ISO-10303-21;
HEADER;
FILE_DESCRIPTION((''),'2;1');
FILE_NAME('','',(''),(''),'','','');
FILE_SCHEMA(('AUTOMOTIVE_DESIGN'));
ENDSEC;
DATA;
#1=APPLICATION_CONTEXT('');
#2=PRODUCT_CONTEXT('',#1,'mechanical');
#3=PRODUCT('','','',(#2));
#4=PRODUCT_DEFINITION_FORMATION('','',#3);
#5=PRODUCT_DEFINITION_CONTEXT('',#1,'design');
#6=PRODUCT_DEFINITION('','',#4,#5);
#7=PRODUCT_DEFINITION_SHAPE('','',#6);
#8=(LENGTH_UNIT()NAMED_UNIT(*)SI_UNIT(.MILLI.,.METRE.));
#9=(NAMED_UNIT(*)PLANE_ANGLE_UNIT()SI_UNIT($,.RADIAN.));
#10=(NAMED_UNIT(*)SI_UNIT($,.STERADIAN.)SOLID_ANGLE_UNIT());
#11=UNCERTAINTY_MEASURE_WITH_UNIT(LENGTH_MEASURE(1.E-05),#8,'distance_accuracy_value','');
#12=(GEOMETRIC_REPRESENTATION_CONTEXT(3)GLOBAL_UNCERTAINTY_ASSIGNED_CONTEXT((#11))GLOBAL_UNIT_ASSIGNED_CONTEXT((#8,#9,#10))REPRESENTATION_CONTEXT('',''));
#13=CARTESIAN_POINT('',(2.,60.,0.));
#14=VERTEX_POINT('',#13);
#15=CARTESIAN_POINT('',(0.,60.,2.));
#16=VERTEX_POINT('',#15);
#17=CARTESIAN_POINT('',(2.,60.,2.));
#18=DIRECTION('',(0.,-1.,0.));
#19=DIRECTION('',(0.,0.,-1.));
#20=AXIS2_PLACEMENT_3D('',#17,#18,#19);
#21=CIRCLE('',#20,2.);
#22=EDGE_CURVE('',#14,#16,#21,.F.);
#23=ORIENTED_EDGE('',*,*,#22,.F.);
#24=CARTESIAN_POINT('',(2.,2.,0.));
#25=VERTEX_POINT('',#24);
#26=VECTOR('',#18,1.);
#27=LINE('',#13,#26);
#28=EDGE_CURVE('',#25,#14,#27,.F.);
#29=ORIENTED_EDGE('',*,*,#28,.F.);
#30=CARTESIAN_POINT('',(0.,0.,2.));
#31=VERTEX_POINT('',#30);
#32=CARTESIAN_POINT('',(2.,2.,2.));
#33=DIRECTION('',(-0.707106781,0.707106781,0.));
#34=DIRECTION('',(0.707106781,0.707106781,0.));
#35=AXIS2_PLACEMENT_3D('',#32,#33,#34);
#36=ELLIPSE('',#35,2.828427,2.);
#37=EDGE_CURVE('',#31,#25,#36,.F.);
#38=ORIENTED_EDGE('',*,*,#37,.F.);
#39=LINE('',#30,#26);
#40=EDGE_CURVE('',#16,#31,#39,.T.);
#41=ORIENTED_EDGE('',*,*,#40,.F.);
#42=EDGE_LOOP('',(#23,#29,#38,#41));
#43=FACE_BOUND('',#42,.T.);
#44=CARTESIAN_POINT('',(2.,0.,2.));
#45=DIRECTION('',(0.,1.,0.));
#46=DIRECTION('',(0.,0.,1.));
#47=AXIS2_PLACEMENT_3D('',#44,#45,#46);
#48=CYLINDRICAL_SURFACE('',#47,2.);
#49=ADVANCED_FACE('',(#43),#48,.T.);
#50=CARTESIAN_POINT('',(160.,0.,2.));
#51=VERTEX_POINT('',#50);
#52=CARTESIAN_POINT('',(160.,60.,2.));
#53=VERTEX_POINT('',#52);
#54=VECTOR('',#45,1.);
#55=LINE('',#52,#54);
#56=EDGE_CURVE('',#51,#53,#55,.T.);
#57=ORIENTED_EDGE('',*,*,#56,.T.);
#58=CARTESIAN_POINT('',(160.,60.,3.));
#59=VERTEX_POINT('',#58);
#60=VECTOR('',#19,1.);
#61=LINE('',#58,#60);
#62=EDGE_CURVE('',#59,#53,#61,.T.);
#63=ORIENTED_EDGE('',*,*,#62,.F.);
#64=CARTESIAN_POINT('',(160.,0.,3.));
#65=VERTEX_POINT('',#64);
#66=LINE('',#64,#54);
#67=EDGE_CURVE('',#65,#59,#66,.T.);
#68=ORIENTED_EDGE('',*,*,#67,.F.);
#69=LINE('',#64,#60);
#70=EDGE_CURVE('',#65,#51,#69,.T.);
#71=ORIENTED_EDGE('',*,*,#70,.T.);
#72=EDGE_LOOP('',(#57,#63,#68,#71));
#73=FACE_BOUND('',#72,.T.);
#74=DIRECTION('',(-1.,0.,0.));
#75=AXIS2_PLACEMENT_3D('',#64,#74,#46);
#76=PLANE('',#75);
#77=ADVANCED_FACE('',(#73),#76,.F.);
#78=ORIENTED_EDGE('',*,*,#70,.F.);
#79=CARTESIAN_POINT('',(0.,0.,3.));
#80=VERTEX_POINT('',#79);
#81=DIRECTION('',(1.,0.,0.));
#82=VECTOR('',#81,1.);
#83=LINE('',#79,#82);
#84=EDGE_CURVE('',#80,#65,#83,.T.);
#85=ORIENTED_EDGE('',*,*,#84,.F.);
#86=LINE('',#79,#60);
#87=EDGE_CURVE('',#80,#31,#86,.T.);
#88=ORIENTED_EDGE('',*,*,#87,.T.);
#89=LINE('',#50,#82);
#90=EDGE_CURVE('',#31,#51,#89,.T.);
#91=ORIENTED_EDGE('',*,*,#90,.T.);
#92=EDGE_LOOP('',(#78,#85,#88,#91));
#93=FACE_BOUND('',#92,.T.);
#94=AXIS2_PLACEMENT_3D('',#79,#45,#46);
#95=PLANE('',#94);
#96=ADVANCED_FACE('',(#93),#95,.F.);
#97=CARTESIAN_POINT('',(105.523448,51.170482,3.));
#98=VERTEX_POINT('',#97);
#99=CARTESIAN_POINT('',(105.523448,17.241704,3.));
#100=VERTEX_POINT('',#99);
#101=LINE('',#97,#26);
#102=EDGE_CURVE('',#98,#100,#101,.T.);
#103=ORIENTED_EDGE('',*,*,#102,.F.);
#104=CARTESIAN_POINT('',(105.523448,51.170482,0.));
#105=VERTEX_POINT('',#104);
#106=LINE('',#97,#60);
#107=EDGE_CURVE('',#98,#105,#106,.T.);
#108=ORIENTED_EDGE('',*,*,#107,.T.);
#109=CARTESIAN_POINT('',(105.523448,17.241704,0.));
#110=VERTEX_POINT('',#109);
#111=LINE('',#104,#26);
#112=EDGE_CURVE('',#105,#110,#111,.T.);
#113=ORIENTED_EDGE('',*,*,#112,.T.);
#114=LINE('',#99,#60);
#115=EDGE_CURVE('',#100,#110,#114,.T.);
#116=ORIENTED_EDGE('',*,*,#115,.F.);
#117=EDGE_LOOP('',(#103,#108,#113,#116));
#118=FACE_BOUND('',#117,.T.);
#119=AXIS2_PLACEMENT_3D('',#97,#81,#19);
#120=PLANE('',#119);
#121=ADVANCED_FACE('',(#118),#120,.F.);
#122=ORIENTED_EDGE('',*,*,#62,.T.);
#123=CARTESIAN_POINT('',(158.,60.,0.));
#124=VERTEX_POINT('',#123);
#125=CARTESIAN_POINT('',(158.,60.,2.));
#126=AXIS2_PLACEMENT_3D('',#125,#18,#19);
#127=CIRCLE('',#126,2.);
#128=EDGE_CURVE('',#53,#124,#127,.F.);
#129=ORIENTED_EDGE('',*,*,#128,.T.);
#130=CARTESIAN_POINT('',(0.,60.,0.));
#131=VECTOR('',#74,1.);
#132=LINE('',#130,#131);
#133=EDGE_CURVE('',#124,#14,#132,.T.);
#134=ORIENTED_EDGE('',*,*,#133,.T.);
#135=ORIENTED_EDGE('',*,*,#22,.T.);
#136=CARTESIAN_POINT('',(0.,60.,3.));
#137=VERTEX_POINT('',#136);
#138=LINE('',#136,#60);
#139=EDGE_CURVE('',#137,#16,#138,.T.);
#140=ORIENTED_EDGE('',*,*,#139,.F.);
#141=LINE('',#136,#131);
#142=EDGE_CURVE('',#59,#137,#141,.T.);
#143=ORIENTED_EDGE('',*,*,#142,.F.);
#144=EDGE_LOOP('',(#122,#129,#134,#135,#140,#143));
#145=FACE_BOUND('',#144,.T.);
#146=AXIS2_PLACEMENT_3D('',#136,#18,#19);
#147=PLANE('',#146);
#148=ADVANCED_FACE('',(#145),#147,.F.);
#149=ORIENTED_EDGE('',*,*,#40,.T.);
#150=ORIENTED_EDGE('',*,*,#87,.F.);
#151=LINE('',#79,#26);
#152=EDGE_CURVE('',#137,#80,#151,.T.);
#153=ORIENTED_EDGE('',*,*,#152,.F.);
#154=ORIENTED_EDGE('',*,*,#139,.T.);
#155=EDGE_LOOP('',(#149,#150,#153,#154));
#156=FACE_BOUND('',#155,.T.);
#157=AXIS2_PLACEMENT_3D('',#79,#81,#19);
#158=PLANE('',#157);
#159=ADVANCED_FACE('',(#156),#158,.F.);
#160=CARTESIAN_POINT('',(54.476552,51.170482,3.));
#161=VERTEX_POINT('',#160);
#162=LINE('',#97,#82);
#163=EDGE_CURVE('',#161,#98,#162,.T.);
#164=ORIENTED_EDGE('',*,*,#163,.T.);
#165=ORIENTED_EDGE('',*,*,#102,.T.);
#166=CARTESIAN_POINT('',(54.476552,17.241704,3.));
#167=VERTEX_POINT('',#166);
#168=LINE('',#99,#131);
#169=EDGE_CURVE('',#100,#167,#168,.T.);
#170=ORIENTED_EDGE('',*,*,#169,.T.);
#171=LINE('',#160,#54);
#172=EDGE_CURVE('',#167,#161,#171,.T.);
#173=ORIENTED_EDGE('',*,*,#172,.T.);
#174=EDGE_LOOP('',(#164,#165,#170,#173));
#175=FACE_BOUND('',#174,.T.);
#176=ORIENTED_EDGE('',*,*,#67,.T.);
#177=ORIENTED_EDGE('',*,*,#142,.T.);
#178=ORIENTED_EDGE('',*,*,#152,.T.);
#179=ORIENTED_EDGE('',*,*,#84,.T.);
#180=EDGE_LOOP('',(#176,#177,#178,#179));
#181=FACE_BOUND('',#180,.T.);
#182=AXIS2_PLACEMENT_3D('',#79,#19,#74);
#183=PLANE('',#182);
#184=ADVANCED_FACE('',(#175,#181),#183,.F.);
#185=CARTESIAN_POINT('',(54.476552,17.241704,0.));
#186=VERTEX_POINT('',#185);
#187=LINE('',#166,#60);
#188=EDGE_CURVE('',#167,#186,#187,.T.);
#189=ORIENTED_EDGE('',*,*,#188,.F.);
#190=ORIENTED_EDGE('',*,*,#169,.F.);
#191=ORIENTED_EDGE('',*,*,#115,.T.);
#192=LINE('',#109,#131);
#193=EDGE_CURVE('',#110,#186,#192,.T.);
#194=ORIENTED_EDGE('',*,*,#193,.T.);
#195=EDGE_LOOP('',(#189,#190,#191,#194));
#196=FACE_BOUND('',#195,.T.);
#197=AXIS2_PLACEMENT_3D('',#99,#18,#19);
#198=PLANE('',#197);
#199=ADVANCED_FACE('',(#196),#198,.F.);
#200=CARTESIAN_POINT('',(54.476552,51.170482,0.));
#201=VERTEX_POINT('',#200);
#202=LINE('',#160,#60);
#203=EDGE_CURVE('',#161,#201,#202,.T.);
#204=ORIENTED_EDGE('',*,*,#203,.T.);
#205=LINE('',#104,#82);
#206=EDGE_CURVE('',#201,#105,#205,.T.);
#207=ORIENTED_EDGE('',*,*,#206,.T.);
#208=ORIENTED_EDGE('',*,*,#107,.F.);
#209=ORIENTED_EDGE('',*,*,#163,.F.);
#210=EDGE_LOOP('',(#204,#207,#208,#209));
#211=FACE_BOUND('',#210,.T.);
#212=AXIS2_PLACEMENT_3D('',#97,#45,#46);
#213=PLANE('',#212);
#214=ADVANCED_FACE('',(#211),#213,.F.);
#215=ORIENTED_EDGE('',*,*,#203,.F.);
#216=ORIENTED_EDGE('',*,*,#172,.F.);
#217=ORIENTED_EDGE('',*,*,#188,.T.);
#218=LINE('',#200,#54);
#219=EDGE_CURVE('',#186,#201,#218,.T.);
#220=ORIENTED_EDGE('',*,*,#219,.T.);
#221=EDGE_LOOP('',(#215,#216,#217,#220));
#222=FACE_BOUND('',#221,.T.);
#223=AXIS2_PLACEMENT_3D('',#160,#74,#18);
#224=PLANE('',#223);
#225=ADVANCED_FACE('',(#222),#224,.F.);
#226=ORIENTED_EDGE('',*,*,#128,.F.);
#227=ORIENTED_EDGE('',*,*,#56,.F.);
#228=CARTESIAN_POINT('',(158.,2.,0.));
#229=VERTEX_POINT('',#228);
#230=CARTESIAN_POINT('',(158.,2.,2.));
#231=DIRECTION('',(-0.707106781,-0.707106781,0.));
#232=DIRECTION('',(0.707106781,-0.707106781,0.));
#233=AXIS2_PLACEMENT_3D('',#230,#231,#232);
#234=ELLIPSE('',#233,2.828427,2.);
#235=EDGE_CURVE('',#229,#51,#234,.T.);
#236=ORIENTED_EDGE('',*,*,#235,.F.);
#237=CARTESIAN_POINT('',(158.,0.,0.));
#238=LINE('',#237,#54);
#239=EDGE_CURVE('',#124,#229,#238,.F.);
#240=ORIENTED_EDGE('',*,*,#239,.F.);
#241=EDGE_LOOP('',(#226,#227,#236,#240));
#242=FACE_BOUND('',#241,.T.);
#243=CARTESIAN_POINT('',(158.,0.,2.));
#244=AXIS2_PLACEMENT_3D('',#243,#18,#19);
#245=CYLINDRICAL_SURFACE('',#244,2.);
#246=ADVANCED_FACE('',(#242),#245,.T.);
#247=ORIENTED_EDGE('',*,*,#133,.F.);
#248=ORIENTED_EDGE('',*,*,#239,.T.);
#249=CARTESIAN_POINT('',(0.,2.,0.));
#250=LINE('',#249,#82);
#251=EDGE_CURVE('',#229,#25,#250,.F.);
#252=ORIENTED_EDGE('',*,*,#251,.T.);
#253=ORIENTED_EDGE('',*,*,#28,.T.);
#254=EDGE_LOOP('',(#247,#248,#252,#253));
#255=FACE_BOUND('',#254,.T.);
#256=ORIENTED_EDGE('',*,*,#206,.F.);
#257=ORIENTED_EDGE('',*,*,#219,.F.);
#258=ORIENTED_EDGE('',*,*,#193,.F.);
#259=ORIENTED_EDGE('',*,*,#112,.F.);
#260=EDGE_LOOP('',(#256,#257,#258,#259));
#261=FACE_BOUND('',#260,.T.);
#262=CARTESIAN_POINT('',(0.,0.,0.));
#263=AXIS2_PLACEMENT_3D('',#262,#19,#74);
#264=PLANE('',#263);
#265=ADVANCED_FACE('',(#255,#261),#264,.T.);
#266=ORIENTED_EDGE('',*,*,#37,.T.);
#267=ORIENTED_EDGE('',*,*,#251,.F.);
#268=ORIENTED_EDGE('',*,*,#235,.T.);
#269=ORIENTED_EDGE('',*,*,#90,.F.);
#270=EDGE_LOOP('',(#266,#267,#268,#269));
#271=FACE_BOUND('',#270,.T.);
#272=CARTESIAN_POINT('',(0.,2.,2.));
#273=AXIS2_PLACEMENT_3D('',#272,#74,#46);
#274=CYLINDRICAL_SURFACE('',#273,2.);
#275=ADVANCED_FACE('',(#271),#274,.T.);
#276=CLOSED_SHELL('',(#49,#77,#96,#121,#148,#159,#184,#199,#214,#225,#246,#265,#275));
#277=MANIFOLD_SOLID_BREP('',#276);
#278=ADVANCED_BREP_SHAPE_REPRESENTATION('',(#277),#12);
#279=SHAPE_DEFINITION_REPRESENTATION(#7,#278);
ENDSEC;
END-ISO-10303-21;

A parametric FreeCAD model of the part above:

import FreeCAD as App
import Part
import Sketcher


def edges_at(feature, points):
    """Names of the edges that pass closest to the given points."""
    edges = feature.Shape.Edges
    near = lambda p: min(range(len(edges)), key=lambda i: edges[i].distToShape(Part.Vertex(*p))[0])
    return sorted({f"Edge{near(p) + 1}" for p in points})

doc = App.newDocument("Part")
body = doc.addObject("PartDesign::Body", "Body")

sketch1 = body.newObject("Sketcher::SketchObject", "Sketch")
sketch1.AttachmentSupport = (doc.getObject("XY_Plane"), [""])
sketch1.MapMode = "FlatFace"
sketch1.addGeometry([
    Part.LineSegment(App.Vector(0, 60, 0), App.Vector(0, 0, 0)),
    Part.LineSegment(App.Vector(0, 0, 0), App.Vector(160, 0, 0)),
    Part.LineSegment(App.Vector(160, 0, 0), App.Vector(160, 60, 0)),
    Part.LineSegment(App.Vector(160, 60, 0), App.Vector(0, 60, 0)),
], False)
sketch1.addConstraint([
    Sketcher.Constraint("Coincident", 0, 2, 1, 1),
    Sketcher.Constraint("Coincident", 1, 2, 2, 1),
    Sketcher.Constraint("Coincident", 2, 2, 3, 1),
    Sketcher.Constraint("Coincident", 3, 2, 0, 1),
    Sketcher.Constraint("Vertical", 0),
    Sketcher.Constraint("Horizontal", 1),
    Sketcher.Constraint("Vertical", 2),
    Sketcher.Constraint("Horizontal", 3),
    Sketcher.Constraint("Coincident", 0, 2, -1, 1),
    Sketcher.Constraint("DistanceX", 1, 1, 1, 2, 160.0),
    Sketcher.Constraint("DistanceY", 0, 2, 0, 1, 60.0),
])
pad1 = body.newObject("PartDesign::Pad", "Pad")
pad1.Profile = sketch1
pad1.Length = 3

sketch2 = body.newObject("Sketcher::SketchObject", "Sketch001")
sketch2.AttachmentSupport = (doc.getObject("XY_Plane"), [""])
sketch2.MapMode = "FlatFace"
sketch2.addGeometry([
    Part.LineSegment(App.Vector(105.523448, 51.170482, 0), App.Vector(105.523448, 17.241704, 0)),
    Part.LineSegment(App.Vector(105.523448, 17.241704, 0), App.Vector(54.476552, 17.241704, 0)),
    Part.LineSegment(App.Vector(54.476552, 17.241704, 0), App.Vector(54.476552, 51.170482, 0)),
    Part.LineSegment(App.Vector(54.476552, 51.170482, 0), App.Vector(105.523448, 51.170482, 0)),
], False)
sketch2.addConstraint([
    Sketcher.Constraint("Coincident", 0, 2, 1, 1),
    Sketcher.Constraint("Coincident", 1, 2, 2, 1),
    Sketcher.Constraint("Coincident", 2, 2, 3, 1),
    Sketcher.Constraint("Coincident", 3, 2, 0, 1),
    Sketcher.Constraint("Vertical", 0),
    Sketcher.Constraint("Horizontal", 1),
    Sketcher.Constraint("Vertical", 2),
    Sketcher.Constraint("Horizontal", 3),
    Sketcher.Constraint("DistanceY", 0, 2, 0, 1, 33.928779),
    Sketcher.Constraint("DistanceX", 1, 2, 1, 1, 51.046897),
    Sketcher.Constraint("DistanceX", -1, 1, 0, 2, 105.523448),
    Sketcher.Constraint("DistanceY", -1, 1, 0, 2, 17.241704),
])
pocket1 = body.newObject("PartDesign::Pocket", "Pocket")
pocket1.Profile = sketch2
pocket1.Type = "ThroughAll"
pocket1.Reversed = True
doc.recompute()

fillet = body.newObject("PartDesign::Fillet", "Fillet")
fillet.Base = (pocket1, edges_at(pocket1, [(160, 30, 0), (80, 0, 0), (0, 30, 0)]))
fillet.Radius = 2

doc.recompute()
